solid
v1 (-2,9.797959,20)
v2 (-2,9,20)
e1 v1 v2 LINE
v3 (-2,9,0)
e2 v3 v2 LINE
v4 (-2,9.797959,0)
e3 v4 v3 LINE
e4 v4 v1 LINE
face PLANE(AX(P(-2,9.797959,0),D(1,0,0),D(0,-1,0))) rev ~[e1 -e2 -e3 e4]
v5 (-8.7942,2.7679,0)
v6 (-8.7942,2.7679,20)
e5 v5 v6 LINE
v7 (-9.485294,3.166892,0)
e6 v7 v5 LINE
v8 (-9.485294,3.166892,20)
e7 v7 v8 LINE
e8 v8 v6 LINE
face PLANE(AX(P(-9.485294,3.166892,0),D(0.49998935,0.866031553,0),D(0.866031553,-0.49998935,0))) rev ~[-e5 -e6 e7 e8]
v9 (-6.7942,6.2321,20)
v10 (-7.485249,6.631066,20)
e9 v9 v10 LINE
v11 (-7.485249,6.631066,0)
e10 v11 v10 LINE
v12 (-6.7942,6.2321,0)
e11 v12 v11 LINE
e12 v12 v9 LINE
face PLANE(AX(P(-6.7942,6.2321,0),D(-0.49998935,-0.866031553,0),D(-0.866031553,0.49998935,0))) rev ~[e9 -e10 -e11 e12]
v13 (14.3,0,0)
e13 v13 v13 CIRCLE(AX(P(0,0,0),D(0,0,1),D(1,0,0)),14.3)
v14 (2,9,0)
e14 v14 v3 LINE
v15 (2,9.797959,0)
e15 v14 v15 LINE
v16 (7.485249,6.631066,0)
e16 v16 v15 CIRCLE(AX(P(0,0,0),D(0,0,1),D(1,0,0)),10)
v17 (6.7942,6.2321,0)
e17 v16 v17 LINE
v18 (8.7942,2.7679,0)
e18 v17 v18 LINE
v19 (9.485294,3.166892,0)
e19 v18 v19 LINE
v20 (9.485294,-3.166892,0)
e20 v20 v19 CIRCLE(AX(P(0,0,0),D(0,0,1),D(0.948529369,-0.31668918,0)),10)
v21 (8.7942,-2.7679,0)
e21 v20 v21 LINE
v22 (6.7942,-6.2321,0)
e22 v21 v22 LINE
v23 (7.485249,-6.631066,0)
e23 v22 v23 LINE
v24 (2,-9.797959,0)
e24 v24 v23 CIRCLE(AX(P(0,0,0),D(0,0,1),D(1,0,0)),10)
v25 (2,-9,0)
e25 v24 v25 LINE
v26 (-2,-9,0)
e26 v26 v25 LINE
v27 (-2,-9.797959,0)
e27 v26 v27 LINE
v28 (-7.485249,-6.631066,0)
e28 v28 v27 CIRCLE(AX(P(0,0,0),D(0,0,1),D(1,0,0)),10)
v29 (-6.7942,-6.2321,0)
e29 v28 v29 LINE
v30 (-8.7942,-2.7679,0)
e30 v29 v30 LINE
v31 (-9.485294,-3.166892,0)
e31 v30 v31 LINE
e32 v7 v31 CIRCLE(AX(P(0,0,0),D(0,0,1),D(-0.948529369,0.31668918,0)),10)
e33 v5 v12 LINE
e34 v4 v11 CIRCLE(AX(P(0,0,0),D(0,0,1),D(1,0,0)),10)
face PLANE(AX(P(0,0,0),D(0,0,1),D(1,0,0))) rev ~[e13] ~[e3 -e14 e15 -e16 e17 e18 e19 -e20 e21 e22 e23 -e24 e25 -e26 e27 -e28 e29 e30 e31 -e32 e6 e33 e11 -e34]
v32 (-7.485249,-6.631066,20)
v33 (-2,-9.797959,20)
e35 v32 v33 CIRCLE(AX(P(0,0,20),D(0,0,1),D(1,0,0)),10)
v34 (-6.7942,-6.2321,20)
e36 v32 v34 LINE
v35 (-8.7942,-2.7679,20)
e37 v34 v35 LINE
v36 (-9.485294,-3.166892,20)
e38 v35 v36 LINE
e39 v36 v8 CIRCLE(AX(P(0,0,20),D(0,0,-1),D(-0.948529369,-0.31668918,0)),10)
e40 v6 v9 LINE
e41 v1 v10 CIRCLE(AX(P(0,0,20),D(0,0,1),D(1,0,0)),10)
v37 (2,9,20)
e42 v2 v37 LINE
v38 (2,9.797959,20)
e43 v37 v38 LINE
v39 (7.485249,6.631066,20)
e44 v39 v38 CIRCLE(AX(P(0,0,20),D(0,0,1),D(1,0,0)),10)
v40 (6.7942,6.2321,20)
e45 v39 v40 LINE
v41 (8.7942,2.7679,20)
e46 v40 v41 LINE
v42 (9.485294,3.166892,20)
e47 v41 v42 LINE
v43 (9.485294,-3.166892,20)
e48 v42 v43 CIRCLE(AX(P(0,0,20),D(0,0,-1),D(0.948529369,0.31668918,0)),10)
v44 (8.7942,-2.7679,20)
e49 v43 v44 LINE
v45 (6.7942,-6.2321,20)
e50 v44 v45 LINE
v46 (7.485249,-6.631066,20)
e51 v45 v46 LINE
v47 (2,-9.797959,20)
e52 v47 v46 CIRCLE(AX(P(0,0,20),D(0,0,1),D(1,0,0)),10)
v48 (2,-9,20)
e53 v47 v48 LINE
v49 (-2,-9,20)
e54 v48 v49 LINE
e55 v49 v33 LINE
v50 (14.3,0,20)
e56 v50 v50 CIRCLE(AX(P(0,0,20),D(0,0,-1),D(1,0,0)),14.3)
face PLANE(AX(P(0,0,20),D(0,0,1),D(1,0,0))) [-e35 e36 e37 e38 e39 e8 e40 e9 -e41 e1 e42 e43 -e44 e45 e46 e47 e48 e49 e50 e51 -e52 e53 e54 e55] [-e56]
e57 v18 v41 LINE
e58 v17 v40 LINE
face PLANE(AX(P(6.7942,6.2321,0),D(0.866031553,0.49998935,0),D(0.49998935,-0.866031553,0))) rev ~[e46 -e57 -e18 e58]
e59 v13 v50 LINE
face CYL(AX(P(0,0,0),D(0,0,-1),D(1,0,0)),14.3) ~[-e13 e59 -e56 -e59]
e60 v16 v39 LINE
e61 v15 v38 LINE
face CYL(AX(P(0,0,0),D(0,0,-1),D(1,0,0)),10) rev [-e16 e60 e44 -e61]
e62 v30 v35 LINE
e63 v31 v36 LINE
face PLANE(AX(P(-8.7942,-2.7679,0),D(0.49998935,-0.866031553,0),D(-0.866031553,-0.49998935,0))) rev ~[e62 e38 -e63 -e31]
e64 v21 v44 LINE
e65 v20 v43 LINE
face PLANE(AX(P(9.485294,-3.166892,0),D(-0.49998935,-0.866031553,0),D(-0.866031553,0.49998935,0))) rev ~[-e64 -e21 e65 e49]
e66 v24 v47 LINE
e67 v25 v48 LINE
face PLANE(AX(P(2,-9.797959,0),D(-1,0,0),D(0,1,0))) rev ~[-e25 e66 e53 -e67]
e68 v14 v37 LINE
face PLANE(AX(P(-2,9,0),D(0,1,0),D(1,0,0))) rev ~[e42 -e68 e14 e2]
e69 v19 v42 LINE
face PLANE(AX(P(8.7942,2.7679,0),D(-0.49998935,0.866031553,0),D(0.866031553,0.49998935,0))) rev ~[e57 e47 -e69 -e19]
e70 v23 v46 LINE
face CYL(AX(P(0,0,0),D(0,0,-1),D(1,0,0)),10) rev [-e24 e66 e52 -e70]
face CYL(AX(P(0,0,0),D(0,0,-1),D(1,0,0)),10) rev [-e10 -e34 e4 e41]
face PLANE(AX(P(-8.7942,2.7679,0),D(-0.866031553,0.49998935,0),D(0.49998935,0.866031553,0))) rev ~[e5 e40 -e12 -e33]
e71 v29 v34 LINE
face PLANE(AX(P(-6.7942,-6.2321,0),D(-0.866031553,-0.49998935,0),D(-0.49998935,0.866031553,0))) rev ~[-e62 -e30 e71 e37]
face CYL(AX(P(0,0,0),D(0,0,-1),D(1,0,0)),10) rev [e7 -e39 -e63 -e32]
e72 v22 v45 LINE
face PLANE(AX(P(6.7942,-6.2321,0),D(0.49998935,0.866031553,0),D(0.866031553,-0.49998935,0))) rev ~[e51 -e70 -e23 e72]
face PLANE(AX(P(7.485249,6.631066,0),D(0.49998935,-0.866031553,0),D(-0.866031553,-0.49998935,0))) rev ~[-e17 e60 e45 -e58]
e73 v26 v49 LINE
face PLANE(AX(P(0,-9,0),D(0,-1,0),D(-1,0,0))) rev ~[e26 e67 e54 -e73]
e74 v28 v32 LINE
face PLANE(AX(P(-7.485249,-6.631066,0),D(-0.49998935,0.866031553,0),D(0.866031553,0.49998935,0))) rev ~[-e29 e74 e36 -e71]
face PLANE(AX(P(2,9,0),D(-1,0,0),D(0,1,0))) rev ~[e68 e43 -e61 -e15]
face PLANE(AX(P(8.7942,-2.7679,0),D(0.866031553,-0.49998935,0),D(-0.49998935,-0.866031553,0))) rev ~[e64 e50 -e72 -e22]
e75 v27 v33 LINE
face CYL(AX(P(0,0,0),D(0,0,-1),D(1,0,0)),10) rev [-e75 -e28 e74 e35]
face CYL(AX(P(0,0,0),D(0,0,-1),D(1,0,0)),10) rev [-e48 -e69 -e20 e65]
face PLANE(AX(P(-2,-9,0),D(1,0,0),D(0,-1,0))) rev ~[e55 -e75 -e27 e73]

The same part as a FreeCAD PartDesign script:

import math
import FreeCAD as App
import Part
import Sketcher
from FreeCAD import Vector

doc = App.newDocument("Part")
body = doc.addObject("PartDesign::Body", "Body")

# Sketch on XY plane
sketch1 = body.newObject("Sketcher::SketchObject", "Sketch")
sketch1.AttachmentSupport = (doc.getObject("XY_Plane"), [""])
sketch1.MapMode = "FlatFace"
sketch1.addGeometry(Part.Circle(Vector(0, 0, 0), Vector(0, 0, 1), 14.3), False)
sketch1.addGeometry(Part.ArcOfCircle(Part.Circle(Vector(0, 0, 0), Vector(0, 0, 1), 10), math.radians(162), math.radians(198)), False)
sketch1.addGeometry(Part.LineSegment(Vector(-9.5, 3.2, 0), Vector(-8.8, 2.8, 0)), False)
sketch1.addGeometry(Part.LineSegment(Vector(-8.8, 2.8, 0), Vector(-6.8, 6.2, 0)), False)
sketch1.addGeometry(Part.LineSegment(Vector(-6.8, 6.2, 0), Vector(-7.5, 6.6, 0)), False)
sketch1.addGeometry(Part.ArcOfCircle(Part.Circle(Vector(0, 0, 0), Vector(0, 0, 1), 10), math.radians(102), math.radians(138)), False)
sketch1.addGeometry(Part.LineSegment(Vector(-2, 9.8, 0), Vector(-2, 9, 0)), False)
sketch1.addGeometry(Part.LineSegment(Vector(-2, 9, 0), Vector(2, 9, 0)), False)
sketch1.addGeometry(Part.LineSegment(Vector(2, 9, 0), Vector(2, 9.8, 0)), False)
sketch1.addGeometry(Part.ArcOfCircle(Part.Circle(Vector(0, 0, 0), Vector(0, 0, 1), 10), math.radians(42), math.radians(78)), False)
sketch1.addGeometry(Part.LineSegment(Vector(7.5, 6.6, 0), Vector(6.8, 6.2, 0)), False)
sketch1.addGeometry(Part.LineSegment(Vector(6.8, 6.2, 0), Vector(8.8, 2.8, 0)), False)
sketch1.addGeometry(Part.LineSegment(Vector(8.8, 2.8, 0), Vector(9.5, 3.2, 0)), False)
sketch1.addGeometry(Part.ArcOfCircle(Part.Circle(Vector(0, 0, 0), Vector(0, 0, 1), 10), math.radians(-18), math.radians(18)), False)
sketch1.addGeometry(Part.LineSegment(Vector(9.5, -3.2, 0), Vector(8.8, -2.8, 0)), False)
sketch1.addGeometry(Part.LineSegment(Vector(8.8, -2.8, 0), Vector(6.8, -6.2, 0)), False)
sketch1.addGeometry(Part.LineSegment(Vector(6.8, -6.2, 0), Vector(7.5, -6.6, 0)), False)
sketch1.addGeometry(Part.ArcOfCircle(Part.Circle(Vector(0, 0, 0), Vector(0, 0, 1), 10), math.radians(-78), math.radians(-42)), False)
sketch1.addGeometry(Part.LineSegment(Vector(2, -9.8, 0), Vector(2, -9, 0)), False)
sketch1.addGeometry(Part.LineSegment(Vector(2, -9, 0), Vector(-2, -9, 0)), False)
sketch1.addGeometry(Part.LineSegment(Vector(-2, -9, 0), Vector(-2, -9.8, 0)), False)
sketch1.addGeometry(Part.ArcOfCircle(Part.Circle(Vector(0, 0, 0), Vector(0, 0, 1), 10), math.radians(-138), math.radians(-102)), False)
sketch1.addGeometry(Part.LineSegment(Vector(-7.5, -6.6, 0), Vector(-6.8, -6.2, 0)), False)
sketch1.addGeometry(Part.LineSegment(Vector(-6.8, -6.2, 0), Vector(-8.8, -2.8, 0)), False)
sketch1.addGeometry(Part.LineSegment(Vector(-8.8, -2.8, 0), Vector(-9.5, -3.2, 0)), False)
sketch1.addConstraint(Sketcher.Constraint("Coincident", 1, 1, 2, 1))
sketch1.addConstraint(Sketcher.Constraint("Coincident", 2, 2, 3, 1))
sketch1.addConstraint(Sketcher.Constraint("Coincident", 3, 2, 4, 1))
sketch1.addConstraint(Sketcher.Constraint("Coincident", 4, 2, 5, 2))
sketch1.addConstraint(Sketcher.Constraint("Coincident", 5, 1, 6, 1))
sketch1.addConstraint(Sketcher.Constraint("Coincident", 6, 2, 7, 1))
sketch1.addConstraint(Sketcher.Constraint("Coincident", 7, 2, 8, 1))
sketch1.addConstraint(Sketcher.Constraint("Coincident", 8, 2, 9, 2))
sketch1.addConstraint(Sketcher.Constraint("Coincident", 9, 1, 10, 1))
sketch1.addConstraint(Sketcher.Constraint("Coincident", 10, 2, 11, 1))
sketch1.addConstraint(Sketcher.Constraint("Coincident", 11, 2, 12, 1))
sketch1.addConstraint(Sketcher.Constraint("Coincident", 12, 2, 13, 2))
sketch1.addConstraint(Sketcher.Constraint("Coincident", 13, 1, 14, 1))
sketch1.addConstraint(Sketcher.Constraint("Coincident", 14, 2, 15, 1))
sketch1.addConstraint(Sketcher.Constraint("Coincident", 15, 2, 16, 1))
sketch1.addConstraint(Sketcher.Constraint("Coincident", 16, 2, 17, 2))
sketch1.addConstraint(Sketcher.Constraint("Coincident", 17, 1, 18, 1))
sketch1.addConstraint(Sketcher.Constraint("Coincident", 18, 2, 19, 1))
sketch1.addConstraint(Sketcher.Constraint("Coincident", 19, 2, 20, 1))
sketch1.addConstraint(Sketcher.Constraint("Coincident", 20, 2, 21, 2))
sketch1.addConstraint(Sketcher.Constraint("Coincident", 21, 1, 22, 1))
sketch1.addConstraint(Sketcher.Constraint("Coincident", 22, 2, 23, 1))
sketch1.addConstraint(Sketcher.Constraint("Coincident", 23, 2, 24, 1))
sketch1.addConstraint(Sketcher.Constraint("Coincident", 24, 2, 1, 2))
sketch1.addConstraint(Sketcher.Constraint("Vertical", 6))
sketch1.addConstraint(Sketcher.Constraint("Horizontal", 7))
sketch1.addConstraint(Sketcher.Constraint("Vertical", 8))
sketch1.addConstraint(Sketcher.Constraint("Vertical", 18))
sketch1.addConstraint(Sketcher.Constraint("Horizontal", 19))
sketch1.addConstraint(Sketcher.Constraint("Vertical", 20))
sketch1.addConstraint(Sketcher.Constraint("Coincident", 0, 3, -1, 1))
sketch1.addConstraint(Sketcher.Constraint("Coincident", 1, 3, -1, 1))
sketch1.addConstraint(Sketcher.Constraint("Coincident", 5, 3, -1, 1))
sketch1.addConstraint(Sketcher.Constraint("Coincident", 9, 3, -1, 1))
sketch1.addConstraint(Sketcher.Constraint("Coincident", 13, 3, -1, 1))
sketch1.addConstraint(Sketcher.Constraint("Coincident", 17, 3, -1, 1))
sketch1.addConstraint(Sketcher.Constraint("Coincident", 21, 3, -1, 1))
sketch1.addConstraint(Sketcher.Constraint("Equal", 1, 5))
sketch1.addConstraint(Sketcher.Constraint("Equal", 5, 9))
sketch1.addConstraint(Sketcher.Constraint("Equal", 9, 13))
sketch1.addConstraint(Sketcher.Constraint("Equal", 13, 17))
sketch1.addConstraint(Sketcher.Constraint("Equal", 17, 21))
sketch1.addConstraint(Sketcher.Constraint("Symmetric", 2, 2, 14, 2, -1, 1))
sketch1.addConstraint(Sketcher.Constraint("Symmetric", 3, 2, 15, 2, -1, 1))
sketch1.addConstraint(Sketcher.Constraint("Symmetric", 6, 2, 18, 2, -1, 1))
sketch1.addConstraint(Sketcher.Constraint("Symmetric", 10, 2, 22, 2, -1, 1))
sketch1.addConstraint(Sketcher.Constraint("Symmetric", 11, 2, 23, 2, -1, 1))
sketch1.addConstraint(Sketcher.Constraint("Symmetric", 3, 2, 10, 2, -2))
sketch1.addConstraint(Sketcher.Constraint("Symmetric", 2, 2, 11, 2, -2))
sketch1.addConstraint(Sketcher.Constraint("Perpendicular", 2, 3))
sketch1.addConstraint(Sketcher.Constraint("Perpendicular", 3, 4))
sketch1.addConstraint(Sketcher.Constraint("Perpendicular", 10, 11))
sketch1.addConstraint(Sketcher.Constraint("Perpendicular", 11, 12))
sketch1.addConstraint(Sketcher.Constraint("Parallel", 4, 14))
sketch1.addConstraint(Sketcher.Constraint("Perpendicular", 15, 16))
sketch1.addConstraint(Sketcher.Constraint("Parallel", 12, 22))
sketch1.addConstraint(Sketcher.Constraint("Perpendicular", 23, 24))
sketch1.addConstraint(Sketcher.Constraint("Horizontal", 5, 1, 8, 2))
sketch1.addConstraint(Sketcher.Constraint("Horizontal", 17, 1, 20, 2))
sketch1.addConstraint(Sketcher.Constraint("Equal", 2, 4))
sketch1.addConstraint(Sketcher.Constraint("Radius", 1, 10.0))
sketch1.addConstraint(Sketcher.Constraint("Diameter", 0, 28.6))
sketch1.addConstraint(Sketcher.Constraint("DistanceX", 7, 1, 7, 2, 4.0))
sketch1.addConstraint(Sketcher.Constraint("Distance", 3, 4.0))
sketch1.addConstraint(Sketcher.Constraint("DistanceX", 2, 2, 3, 2, 2.0))
sketch1.addConstraint(Sketcher.Constraint("DistanceY", -1, 1, 6, 2, 9.0))
sketch1.addConstraint(Sketcher.Constraint("DistanceY", 15, 2, 11, 2, 9.0))
pad1 = body.newObject("PartDesign::Pad", "Pad")
pad1.Profile = sketch1
pad1.Length = 20

doc.recompute()
